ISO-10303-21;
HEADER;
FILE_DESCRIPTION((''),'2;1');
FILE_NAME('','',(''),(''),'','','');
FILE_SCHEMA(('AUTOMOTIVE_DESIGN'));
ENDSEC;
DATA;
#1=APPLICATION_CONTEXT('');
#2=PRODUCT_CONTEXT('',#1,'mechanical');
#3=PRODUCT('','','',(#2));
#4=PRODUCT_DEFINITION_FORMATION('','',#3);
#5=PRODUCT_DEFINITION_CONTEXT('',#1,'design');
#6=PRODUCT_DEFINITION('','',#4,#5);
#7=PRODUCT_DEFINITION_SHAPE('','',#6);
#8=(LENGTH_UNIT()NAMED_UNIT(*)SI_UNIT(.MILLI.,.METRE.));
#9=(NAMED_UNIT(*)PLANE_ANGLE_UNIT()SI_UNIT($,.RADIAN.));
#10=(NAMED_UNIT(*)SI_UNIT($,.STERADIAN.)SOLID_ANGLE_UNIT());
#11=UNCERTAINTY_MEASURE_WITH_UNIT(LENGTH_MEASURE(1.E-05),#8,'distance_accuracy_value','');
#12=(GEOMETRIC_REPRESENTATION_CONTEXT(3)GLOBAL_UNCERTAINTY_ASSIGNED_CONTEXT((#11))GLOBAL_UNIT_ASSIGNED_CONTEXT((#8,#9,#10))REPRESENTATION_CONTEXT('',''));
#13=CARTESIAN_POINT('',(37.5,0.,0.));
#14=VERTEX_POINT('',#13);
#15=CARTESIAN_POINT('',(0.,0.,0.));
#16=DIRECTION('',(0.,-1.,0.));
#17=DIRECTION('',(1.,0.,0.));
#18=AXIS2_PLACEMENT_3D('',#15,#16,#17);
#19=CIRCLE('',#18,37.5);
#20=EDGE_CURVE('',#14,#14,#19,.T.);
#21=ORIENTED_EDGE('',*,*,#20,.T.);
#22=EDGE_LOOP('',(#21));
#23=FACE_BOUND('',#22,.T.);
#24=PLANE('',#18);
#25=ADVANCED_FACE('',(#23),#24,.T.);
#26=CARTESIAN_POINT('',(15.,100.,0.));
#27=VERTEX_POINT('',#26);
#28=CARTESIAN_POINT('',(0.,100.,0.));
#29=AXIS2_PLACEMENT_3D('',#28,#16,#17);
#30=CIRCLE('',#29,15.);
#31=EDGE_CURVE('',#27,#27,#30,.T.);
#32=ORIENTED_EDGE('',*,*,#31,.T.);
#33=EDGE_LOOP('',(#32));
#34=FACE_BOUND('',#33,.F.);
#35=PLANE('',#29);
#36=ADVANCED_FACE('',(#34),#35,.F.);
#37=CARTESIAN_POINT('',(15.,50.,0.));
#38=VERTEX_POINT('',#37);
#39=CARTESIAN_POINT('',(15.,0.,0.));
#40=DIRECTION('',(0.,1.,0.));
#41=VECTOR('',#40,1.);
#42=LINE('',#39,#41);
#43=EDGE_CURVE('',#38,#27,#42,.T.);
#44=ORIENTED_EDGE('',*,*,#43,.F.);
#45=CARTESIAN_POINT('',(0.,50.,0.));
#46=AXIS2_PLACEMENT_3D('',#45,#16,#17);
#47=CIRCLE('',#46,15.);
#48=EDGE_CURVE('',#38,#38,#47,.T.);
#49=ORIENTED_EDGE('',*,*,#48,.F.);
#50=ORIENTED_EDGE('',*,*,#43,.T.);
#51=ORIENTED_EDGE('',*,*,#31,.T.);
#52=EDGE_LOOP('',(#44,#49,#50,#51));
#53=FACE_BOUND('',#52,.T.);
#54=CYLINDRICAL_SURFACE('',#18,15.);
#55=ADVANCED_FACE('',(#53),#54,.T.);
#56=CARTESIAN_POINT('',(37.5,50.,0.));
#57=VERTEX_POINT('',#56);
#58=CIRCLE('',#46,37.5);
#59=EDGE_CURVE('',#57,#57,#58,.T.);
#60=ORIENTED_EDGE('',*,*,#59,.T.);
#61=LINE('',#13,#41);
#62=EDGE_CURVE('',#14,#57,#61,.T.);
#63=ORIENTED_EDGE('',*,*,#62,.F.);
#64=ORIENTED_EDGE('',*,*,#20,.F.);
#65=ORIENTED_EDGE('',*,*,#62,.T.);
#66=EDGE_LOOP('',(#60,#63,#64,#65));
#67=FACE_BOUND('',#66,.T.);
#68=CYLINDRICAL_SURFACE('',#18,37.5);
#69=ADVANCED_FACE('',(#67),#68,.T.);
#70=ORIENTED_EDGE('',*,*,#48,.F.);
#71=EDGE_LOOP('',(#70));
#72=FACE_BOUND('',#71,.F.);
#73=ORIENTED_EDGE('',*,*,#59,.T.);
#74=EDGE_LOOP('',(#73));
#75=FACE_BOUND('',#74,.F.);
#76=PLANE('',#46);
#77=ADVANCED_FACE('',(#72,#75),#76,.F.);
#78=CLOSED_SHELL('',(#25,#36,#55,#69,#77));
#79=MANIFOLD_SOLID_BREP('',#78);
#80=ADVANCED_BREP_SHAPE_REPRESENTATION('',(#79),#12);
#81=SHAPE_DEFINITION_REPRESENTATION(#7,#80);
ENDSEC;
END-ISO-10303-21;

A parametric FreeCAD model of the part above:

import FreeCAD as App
import Part
import Sketcher
from FreeCAD import Vector
Q = App.Units.Quantity

doc = App.newDocument("Part")
body = doc.addObject("PartDesign::Body", "Body")

# Sketch on XZ plane
sketch1 = doc.addObject("Sketcher::SketchObject", "Sketch")
body.addObject(sketch1)
sketch1.AttachmentSupport = (doc.XZ_Plane, [""])
sketch1.MapMode = "FlatFace"
sketch1.addGeometry(Part.Circle(Vector(0, 0, 0), Vector(0, 0, 1), 15), False)
sketch1.addConstraint([
    Sketcher.Constraint("Coincident", 0, 3, -1, 1),
    Sketcher.Constraint("Diameter", 0, Q("30 mm")),
])
pad1 = doc.addObject("PartDesign::Pad", "Pad")
body.addObject(pad1)
pad1.Profile = sketch1
pad1.Length = 100
pad1.Reversed = True

# Sketch on XZ plane
sketch2 = doc.addObject("Sketcher::SketchObject", "Sketch001")
body.addObject(sketch2)
sketch2.AttachmentSupport = (doc.XZ_Plane, [""])
sketch2.MapMode = "FlatFace"
sketch2.addGeometry([
    Part.Circle(Vector(0, 0, 0), Vector(0, 0, 1), 37.5),
    Part.Circle(Vector(0, 0, 0), Vector(0, 0, 1), 15),
], False)
sketch2.addConstraint([
    Sketcher.Constraint("Coincident", 0, 3, -1, 1),
    Sketcher.Constraint("Coincident", 1, 3, -1, 1),
    Sketcher.Constraint("Diameter", 0, Q("75 mm")),
    Sketcher.Constraint("Diameter", 1, Q("30 mm")),
])
pad2 = doc.addObject("PartDesign::Pad", "Pad001")
body.addObject(pad2)
pad2.Profile = sketch2
pad2.Length = 50
pad2.Reversed = True

doc.recompute()
